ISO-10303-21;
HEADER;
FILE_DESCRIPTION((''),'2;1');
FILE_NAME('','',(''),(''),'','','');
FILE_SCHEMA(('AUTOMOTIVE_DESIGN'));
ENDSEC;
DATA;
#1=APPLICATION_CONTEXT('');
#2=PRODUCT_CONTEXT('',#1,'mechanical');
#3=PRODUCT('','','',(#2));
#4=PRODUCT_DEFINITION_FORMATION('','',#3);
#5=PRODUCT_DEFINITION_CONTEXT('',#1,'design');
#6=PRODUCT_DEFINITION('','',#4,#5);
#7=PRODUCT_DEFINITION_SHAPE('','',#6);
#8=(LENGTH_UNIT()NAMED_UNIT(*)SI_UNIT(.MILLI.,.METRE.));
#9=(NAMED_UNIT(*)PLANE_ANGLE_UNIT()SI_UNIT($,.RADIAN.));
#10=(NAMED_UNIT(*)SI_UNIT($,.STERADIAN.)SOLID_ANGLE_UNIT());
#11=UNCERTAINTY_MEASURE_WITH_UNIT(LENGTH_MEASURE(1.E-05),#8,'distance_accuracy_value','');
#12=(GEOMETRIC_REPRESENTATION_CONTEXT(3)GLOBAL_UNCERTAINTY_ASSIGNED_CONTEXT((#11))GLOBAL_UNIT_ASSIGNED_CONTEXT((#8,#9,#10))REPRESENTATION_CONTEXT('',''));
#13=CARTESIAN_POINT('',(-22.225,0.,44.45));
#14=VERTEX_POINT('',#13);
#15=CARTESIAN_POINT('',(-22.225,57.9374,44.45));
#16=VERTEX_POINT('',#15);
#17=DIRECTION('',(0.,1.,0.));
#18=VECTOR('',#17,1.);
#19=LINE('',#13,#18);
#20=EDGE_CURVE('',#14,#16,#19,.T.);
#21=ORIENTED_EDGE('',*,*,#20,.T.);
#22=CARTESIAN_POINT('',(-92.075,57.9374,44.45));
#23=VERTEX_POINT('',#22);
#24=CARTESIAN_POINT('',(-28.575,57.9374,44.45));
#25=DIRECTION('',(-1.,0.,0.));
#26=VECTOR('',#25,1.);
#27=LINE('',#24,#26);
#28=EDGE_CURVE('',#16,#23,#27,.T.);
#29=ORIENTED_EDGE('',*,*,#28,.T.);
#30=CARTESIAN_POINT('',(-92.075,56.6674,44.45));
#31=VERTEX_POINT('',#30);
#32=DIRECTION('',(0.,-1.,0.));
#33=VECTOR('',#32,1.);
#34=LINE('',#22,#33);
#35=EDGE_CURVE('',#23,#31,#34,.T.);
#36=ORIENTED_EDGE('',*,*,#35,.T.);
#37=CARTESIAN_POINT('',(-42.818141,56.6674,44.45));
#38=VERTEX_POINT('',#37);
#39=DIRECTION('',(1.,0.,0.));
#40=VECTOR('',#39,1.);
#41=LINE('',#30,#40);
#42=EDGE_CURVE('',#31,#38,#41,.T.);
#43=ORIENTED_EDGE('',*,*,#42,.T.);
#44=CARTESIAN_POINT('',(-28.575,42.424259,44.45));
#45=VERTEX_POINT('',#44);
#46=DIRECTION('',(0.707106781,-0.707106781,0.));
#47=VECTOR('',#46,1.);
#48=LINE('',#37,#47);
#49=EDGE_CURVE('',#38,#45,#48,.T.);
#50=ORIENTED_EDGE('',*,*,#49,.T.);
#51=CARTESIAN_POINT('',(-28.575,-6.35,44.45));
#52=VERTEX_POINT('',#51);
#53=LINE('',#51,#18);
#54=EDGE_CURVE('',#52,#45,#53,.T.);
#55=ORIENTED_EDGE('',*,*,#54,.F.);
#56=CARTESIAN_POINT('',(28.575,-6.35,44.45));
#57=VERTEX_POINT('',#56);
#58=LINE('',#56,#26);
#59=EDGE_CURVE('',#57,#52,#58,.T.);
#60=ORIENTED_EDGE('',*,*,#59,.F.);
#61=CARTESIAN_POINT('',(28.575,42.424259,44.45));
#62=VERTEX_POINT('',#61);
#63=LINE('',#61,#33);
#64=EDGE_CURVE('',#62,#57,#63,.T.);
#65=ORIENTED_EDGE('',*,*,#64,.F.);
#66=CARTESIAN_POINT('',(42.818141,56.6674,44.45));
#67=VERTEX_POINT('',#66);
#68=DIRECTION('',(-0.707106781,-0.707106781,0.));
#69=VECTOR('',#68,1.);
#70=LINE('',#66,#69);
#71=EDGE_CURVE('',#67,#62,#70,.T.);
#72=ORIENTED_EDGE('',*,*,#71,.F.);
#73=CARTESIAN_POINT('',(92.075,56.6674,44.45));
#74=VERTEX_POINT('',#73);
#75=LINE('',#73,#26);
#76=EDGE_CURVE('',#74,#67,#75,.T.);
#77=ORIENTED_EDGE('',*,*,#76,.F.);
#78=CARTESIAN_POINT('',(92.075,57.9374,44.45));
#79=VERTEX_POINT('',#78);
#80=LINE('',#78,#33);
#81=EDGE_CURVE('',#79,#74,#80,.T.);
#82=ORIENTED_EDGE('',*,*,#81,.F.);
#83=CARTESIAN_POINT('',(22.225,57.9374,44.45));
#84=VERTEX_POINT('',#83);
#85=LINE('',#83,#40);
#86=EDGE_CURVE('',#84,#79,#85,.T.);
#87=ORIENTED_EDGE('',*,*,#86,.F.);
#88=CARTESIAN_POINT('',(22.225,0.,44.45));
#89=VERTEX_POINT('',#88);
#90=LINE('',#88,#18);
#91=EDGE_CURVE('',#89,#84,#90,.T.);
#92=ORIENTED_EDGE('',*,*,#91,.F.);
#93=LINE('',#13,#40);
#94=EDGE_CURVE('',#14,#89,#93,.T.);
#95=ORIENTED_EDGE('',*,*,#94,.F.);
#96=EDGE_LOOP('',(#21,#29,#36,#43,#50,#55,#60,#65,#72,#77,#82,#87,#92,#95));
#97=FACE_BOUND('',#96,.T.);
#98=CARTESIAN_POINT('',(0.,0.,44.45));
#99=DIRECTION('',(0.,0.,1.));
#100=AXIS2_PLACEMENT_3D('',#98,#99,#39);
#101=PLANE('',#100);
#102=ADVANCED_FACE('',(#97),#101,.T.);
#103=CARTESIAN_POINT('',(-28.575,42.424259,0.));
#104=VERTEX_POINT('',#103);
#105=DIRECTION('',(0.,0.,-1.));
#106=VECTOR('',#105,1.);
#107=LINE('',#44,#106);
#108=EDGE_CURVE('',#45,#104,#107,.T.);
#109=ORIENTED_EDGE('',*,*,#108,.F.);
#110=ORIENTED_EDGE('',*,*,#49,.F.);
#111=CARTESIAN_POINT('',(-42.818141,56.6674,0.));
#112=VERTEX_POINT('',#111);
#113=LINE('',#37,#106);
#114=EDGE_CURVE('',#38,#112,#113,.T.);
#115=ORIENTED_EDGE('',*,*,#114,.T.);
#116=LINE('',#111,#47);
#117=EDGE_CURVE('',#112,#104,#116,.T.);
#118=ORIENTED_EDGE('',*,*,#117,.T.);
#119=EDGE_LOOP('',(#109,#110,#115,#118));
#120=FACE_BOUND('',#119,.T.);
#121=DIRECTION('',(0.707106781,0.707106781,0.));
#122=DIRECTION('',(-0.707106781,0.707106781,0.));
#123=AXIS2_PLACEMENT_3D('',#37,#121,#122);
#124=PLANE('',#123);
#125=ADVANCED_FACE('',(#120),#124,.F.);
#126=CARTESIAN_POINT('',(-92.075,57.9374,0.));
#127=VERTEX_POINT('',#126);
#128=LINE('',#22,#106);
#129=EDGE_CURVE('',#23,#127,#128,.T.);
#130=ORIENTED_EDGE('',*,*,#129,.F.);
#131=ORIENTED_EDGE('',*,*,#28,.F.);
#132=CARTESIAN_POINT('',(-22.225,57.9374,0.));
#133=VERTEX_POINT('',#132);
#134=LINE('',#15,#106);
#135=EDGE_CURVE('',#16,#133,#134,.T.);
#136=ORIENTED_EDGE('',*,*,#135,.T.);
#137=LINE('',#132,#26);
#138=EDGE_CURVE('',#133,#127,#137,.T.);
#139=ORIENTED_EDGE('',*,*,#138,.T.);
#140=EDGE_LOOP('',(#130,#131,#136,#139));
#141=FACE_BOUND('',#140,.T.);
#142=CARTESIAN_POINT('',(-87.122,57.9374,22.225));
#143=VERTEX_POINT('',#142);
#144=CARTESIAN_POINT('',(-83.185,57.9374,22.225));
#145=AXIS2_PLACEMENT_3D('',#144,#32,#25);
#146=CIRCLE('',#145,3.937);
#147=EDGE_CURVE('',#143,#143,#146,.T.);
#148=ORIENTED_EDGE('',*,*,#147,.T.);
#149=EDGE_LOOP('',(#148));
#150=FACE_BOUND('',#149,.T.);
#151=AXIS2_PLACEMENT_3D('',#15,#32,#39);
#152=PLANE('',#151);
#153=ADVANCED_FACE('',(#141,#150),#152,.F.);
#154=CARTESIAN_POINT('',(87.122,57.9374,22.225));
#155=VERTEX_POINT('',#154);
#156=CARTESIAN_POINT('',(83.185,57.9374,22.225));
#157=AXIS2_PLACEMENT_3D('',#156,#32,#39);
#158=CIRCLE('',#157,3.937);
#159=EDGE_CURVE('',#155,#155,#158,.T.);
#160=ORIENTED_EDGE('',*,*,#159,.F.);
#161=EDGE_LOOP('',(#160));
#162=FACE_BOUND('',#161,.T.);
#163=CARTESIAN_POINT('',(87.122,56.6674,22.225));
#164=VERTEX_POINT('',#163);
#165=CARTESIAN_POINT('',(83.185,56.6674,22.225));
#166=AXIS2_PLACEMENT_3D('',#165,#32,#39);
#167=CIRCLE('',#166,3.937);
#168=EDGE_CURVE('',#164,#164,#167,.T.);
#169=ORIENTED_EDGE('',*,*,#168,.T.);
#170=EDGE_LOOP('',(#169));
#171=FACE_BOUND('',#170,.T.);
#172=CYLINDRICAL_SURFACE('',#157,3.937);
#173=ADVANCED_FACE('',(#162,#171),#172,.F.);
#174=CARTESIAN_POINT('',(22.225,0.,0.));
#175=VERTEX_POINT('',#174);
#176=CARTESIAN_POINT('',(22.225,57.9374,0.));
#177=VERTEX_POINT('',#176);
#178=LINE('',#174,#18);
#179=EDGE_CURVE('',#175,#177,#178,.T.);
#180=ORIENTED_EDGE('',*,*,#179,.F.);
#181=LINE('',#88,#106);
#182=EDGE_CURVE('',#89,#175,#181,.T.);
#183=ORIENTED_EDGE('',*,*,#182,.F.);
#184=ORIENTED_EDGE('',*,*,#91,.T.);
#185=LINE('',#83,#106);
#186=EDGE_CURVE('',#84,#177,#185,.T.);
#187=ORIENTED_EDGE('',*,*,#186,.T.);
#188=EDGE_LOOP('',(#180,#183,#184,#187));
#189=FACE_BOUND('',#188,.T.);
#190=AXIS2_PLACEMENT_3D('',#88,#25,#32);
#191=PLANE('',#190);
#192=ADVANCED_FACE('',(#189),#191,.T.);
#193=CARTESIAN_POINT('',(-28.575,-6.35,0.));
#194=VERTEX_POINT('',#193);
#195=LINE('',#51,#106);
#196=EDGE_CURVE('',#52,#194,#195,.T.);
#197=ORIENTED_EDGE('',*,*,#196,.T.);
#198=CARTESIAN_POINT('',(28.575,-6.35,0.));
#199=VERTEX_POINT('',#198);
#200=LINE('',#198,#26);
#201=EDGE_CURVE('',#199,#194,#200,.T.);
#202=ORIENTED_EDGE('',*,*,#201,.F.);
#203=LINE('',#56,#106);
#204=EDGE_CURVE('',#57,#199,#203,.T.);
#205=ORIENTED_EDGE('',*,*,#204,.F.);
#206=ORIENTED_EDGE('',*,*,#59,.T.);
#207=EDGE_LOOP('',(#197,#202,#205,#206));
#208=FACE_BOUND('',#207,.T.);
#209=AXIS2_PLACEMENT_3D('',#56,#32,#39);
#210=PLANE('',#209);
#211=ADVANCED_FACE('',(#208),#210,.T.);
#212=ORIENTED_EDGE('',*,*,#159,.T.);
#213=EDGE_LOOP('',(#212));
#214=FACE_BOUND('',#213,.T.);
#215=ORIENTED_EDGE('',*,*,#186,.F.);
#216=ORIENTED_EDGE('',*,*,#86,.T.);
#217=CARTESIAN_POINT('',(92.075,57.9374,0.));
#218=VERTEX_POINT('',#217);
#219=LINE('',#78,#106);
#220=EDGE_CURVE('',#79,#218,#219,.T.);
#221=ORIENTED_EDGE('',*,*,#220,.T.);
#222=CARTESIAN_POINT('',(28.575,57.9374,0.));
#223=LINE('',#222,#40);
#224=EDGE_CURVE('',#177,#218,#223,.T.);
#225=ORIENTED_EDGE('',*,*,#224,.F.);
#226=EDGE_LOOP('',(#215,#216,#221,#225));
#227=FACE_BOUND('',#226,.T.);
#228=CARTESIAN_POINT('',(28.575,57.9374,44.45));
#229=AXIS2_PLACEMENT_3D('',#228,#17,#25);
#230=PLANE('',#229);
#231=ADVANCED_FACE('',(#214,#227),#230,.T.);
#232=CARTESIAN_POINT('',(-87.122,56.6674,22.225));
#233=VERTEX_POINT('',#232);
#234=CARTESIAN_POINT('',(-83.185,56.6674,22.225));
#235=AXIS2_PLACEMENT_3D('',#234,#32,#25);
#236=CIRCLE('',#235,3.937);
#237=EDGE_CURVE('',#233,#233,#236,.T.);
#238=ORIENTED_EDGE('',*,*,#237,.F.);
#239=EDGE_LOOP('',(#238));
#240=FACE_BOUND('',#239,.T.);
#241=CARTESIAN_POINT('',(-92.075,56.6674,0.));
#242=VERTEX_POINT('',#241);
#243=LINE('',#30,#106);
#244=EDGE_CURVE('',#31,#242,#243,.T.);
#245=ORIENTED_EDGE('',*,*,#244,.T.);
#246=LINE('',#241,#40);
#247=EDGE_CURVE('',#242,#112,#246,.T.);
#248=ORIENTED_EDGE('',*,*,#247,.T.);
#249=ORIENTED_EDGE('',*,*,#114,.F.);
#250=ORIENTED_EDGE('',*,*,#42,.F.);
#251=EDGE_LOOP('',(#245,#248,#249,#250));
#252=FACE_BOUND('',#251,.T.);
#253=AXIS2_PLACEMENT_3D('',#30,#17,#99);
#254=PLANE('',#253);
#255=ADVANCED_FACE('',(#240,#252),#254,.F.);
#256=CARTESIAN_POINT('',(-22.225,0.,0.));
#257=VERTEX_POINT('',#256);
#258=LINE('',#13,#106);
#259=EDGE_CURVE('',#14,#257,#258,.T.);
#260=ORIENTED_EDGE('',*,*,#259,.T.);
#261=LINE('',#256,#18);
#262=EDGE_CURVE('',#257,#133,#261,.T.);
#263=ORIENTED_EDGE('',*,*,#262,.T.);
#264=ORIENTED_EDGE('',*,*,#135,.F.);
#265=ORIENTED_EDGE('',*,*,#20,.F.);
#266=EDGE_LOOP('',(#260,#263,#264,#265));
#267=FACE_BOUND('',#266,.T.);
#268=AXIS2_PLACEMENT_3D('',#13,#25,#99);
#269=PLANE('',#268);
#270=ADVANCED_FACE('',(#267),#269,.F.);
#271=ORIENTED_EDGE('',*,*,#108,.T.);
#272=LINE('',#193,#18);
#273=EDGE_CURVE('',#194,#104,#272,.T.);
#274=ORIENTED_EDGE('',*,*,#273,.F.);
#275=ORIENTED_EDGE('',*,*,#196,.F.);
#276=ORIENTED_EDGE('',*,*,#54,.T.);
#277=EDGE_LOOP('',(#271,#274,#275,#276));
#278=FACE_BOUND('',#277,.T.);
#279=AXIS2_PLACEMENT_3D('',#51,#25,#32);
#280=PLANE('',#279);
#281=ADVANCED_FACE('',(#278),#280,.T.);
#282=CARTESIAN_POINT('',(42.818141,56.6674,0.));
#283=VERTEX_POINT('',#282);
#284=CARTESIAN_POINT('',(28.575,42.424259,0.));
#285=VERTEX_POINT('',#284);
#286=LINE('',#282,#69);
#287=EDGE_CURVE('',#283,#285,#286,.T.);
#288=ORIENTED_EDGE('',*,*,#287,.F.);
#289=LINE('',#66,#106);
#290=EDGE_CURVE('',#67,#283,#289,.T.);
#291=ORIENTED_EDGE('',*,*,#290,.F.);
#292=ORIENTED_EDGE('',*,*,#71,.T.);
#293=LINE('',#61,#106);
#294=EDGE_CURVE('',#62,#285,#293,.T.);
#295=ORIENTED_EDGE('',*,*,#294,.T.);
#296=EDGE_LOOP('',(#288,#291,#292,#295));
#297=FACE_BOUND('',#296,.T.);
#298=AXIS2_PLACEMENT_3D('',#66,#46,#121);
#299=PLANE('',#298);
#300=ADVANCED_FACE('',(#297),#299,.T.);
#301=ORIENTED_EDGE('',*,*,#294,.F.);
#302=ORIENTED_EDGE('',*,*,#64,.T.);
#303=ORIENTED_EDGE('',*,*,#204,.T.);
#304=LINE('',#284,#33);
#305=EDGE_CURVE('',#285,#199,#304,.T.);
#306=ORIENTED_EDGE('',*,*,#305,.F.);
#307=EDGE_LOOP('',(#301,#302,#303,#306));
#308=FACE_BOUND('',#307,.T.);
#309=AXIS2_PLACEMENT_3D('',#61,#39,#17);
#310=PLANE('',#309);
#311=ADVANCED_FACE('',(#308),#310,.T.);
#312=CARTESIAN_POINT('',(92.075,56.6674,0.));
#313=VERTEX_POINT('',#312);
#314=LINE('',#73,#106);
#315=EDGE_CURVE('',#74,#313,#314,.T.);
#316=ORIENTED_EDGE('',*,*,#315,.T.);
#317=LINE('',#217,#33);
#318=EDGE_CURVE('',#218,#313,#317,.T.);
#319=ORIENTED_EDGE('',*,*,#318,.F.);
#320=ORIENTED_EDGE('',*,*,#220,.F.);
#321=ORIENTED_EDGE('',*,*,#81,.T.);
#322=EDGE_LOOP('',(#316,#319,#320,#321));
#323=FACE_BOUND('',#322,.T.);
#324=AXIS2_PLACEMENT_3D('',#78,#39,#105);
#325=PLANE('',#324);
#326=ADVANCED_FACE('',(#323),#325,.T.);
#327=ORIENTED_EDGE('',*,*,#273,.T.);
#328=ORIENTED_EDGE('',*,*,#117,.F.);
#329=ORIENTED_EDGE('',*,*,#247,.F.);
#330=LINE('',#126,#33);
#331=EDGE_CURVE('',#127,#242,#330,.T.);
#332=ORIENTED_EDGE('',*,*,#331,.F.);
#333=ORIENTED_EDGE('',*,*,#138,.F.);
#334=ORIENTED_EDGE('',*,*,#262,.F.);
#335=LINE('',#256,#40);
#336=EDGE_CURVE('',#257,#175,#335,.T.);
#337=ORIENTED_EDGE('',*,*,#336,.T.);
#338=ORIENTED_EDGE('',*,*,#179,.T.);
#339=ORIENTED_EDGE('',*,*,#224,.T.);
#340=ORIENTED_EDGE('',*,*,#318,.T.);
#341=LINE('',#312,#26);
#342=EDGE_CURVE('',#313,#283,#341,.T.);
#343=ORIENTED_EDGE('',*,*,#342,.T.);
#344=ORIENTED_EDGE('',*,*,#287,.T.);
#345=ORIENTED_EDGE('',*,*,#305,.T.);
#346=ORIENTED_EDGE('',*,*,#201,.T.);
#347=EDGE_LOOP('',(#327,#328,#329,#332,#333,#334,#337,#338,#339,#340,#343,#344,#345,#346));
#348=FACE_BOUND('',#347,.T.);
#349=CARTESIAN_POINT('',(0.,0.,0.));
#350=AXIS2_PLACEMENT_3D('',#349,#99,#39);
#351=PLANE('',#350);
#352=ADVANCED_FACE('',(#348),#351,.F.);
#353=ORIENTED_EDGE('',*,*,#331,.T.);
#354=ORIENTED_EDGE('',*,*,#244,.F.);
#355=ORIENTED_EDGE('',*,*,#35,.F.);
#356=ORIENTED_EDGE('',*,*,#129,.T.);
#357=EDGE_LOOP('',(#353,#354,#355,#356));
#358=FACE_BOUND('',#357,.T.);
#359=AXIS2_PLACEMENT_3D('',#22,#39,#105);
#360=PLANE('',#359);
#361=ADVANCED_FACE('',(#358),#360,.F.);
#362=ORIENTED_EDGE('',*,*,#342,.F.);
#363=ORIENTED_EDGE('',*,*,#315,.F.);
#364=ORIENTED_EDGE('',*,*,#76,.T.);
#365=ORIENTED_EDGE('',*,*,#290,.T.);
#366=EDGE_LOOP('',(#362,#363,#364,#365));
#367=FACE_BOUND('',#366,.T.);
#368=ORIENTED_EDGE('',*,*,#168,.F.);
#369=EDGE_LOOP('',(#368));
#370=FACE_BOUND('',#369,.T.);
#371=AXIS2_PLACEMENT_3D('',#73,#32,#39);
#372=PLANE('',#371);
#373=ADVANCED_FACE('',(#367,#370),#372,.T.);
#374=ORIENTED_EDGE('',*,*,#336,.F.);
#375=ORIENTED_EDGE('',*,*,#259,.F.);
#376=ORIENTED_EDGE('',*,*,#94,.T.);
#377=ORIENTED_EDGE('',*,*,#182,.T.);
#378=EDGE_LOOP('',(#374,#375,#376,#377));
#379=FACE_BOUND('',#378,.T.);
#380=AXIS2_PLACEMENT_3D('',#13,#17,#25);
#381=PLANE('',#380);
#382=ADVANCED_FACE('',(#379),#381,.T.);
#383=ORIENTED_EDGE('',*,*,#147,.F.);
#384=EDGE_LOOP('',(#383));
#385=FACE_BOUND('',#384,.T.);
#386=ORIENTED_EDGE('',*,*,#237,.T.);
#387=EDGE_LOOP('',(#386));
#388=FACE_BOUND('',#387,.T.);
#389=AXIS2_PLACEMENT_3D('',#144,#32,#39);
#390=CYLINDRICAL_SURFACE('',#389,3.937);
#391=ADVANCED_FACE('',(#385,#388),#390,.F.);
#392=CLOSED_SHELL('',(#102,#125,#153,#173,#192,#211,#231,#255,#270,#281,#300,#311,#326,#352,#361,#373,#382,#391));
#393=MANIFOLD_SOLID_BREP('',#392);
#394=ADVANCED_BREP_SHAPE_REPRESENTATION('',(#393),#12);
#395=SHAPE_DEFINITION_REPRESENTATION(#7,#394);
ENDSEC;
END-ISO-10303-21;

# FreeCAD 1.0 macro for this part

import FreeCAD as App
import Part
import Sketcher
from FreeCAD import Vector
Q = App.Units.Quantity

doc = App.newDocument("Part")
params = doc.addObject("Spreadsheet::Sheet", "Params")
for row, (alias, value) in enumerate([
    ("sketch1_width", "1.75 in"),
    ("sketch1_width2", "2.75 in"),
    ("sketch1_height", "0.05 in"),
    ("sketch1_height2", "2.281 in"),
    ("pad1_length", "1.75 in"),
    ("sketch2_diameter", "0.31 in"),
], start=1):
    params.set(f"A{row}", alias)
    params.set(f"B{row}", "=" + value)
    params.setAlias(f"B{row}", alias)

body = doc.addObject("PartDesign::Body", "Body")

# Sketch on XY plane
sketch1 = doc.addObject("Sketcher::SketchObject", "Sketch")
body.addObject(sketch1)
sketch1.AttachmentSupport = (doc.XY_Plane, [""])
sketch1.MapMode = "FlatFace"
sketch1.addGeometry([
    Part.LineSegment(Vector(22.2, 0, 0), Vector(-22.2, 0, 0)),  # 0
    Part.LineSegment(Vector(-22.2, 0, 0), Vector(-22.2, 57.9, 0)),  # 1
    Part.LineSegment(Vector(-22.2, 57.9, 0), Vector(-92.1, 57.9, 0)),  # 2
    Part.LineSegment(Vector(-92.1, 57.9, 0), Vector(-92.1, 56.7, 0)),  # 3
    Part.LineSegment(Vector(-92.1, 56.7, 0), Vector(-42.8, 56.7, 0)),  # 4
    Part.LineSegment(Vector(-42.8, 56.7, 0), Vector(-28.6, 42.4, 0)),  # 5
    Part.LineSegment(Vector(-28.6, 42.4, 0), Vector(-28.6, -6.3, 0)),  # 6
    Part.LineSegment(Vector(-28.6, -6.3, 0), Vector(28.6, -6.3, 0)),  # 7
    Part.LineSegment(Vector(28.6, -6.3, 0), Vector(28.6, 42.4, 0)),  # 8
    Part.LineSegment(Vector(28.6, 42.4, 0), Vector(42.8, 56.7, 0)),  # 9
    Part.LineSegment(Vector(42.8, 56.7, 0), Vector(92.1, 56.7, 0)),  # 10
    Part.LineSegment(Vector(92.1, 56.7, 0), Vector(92.1, 57.9, 0)),  # 11
    Part.LineSegment(Vector(92.1, 57.9, 0), Vector(22.2, 57.9, 0)),  # 12
    Part.LineSegment(Vector(22.2, 57.9, 0), Vector(22.2, 0, 0)),  # 13
], False)
sketch1.addConstraint([
    Sketcher.Constraint("Coincident", 0, 2, 1, 1),
    Sketcher.Constraint("Coincident", 1, 2, 2, 1),
    Sketcher.Constraint("Coincident", 2, 2, 3, 1),
    Sketcher.Constraint("Coincident", 3, 2, 4, 1),
    Sketcher.Constraint("Coincident", 4, 2, 5, 1),
    Sketcher.Constraint("Coincident", 5, 2, 6, 1),
    Sketcher.Constraint("Coincident", 6, 2, 7, 1),
    Sketcher.Constraint("Coincident", 7, 2, 8, 1),
    Sketcher.Constraint("Coincident", 8, 2, 9, 1),
    Sketcher.Constraint("Coincident", 9, 2, 10, 1),
    Sketcher.Constraint("Coincident", 10, 2, 11, 1),
    Sketcher.Constraint("Coincident", 11, 2, 12, 1),
    Sketcher.Constraint("Coincident", 12, 2, 13, 1),
    Sketcher.Constraint("Coincident", 13, 2, 0, 1),
    Sketcher.Constraint("Horizontal", 0),
    Sketcher.Constraint("Vertical", 1),
    Sketcher.Constraint("Horizontal", 2),
    Sketcher.Constraint("Vertical", 3),
    Sketcher.Constraint("Horizontal", 4),
    Sketcher.Constraint("Vertical", 6),
    Sketcher.Constraint("Horizontal", 7),
    Sketcher.Constraint("Vertical", 8),
    Sketcher.Constraint("Horizontal", 10),
    Sketcher.Constraint("Vertical", 11),
    Sketcher.Constraint("Horizontal", 12),
    Sketcher.Constraint("Vertical", 13),
    Sketcher.Constraint("Symmetric", 0, 2, 13, 2, -1, 1),
    Sketcher.Constraint("Symmetric", 5, 2, 8, 2, -2),
    Sketcher.Constraint("Symmetric", 4, 2, 9, 2, -2),
    Sketcher.Constraint("Symmetric", 2, 2, 11, 2, -2),
    Sketcher.Constraint("Perpendicular", 5, 9),
    Sketcher.Constraint("DistanceX", 0, 2, 7, 2, Q("2 in")),
    Sketcher.Constraint("DistanceX", 0, 2, 0, 1, Q("1.75 in")),
    Sketcher.Constraint("DistanceX", 2, 2, 2, 1, Q("2.75 in")),
    Sketcher.Constraint("DistanceY", 3, 2, 3, 1, Q("0.05 in")),
    Sketcher.Constraint("DistanceY", 1, 1, 1, 2, Q("2.281 in")),
    Sketcher.Constraint("DistanceY", 6, 2, -1, 1, Q("0.25 in")),
    Sketcher.Constraint("DistanceX", 4, 1, 4, 2, 49.256859),
])
sketch1.setExpression("Constraints[32]", "Params.sketch1_width")
sketch1.setExpression("Constraints[33]", "Params.sketch1_width2")
sketch1.setExpression("Constraints[34]", "Params.sketch1_height")
sketch1.setExpression("Constraints[35]", "Params.sketch1_height2")
pad1 = doc.addObject("PartDesign::Pad", "Pad")
body.addObject(pad1)
pad1.Profile = sketch1
pad1.setExpression("Length", "Params.pad1_length")

# Sketch on XZ plane
sketch2 = doc.addObject("Sketcher::SketchObject", "Sketch001")
body.addObject(sketch2)
sketch2.AttachmentSupport = (doc.XZ_Plane, [""])
sketch2.MapMode = "FlatFace"
sketch2.AttachmentOffset = App.Placement(Vector(0, 0, -2.231 * 25.4), App.Rotation())
sketch2.addGeometry([
    Part.Circle(Vector(83.2, 22.2, 0), Vector(0, 0, 1), 3.9),
    Part.Circle(Vector(-83.2, 22.2, 0), Vector(0, 0, 1), 3.9),
], False)
sketch2.addConstraint([
    Sketcher.Constraint("Equal", 0, 1),
    Sketcher.Constraint("Symmetric", 0, 3, 1, 3, -2),
    Sketcher.Constraint("Diameter", 0, Q("0.31 in")),
    Sketcher.Constraint("DistanceX", 1, 3, 0, 3, Q("6.55 in")),
    Sketcher.Constraint("DistanceY", -1, 1, 0, 3, Q("0.875 in")),
])
sketch2.setExpression("Constraints[2]", "Params.sketch2_diameter")
pocket1 = doc.addObject("PartDesign::Pocket", "Pocket")
body.addObject(pocket1)
pocket1.Profile = sketch2
pocket1.Type = "ThroughAll"

doc.recompute()
